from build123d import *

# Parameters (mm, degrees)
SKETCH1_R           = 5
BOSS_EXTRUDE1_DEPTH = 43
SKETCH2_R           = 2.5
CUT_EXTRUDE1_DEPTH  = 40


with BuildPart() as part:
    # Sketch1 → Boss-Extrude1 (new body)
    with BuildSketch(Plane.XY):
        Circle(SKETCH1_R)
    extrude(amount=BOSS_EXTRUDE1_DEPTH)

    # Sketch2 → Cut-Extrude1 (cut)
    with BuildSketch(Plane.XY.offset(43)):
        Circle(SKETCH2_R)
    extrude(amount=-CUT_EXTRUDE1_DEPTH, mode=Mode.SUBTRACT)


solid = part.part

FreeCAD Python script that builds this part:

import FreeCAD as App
import Part
import Sketcher
from FreeCAD import Vector

doc = App.newDocument("Part")
body = doc.addObject("PartDesign::Body", "Body")

# Sketch on XY plane
sketch1 = doc.addObject("Sketcher::SketchObject", "Sketch")
body.addObject(sketch1)
sketch1.AttachmentSupport = (doc.XY_Plane, [""])
sketch1.MapMode = "FlatFace"
sketch1.addGeometry(Part.Circle(Vector(0, 0, 0), Vector(0, 0, 1), 5), False)
sketch1.addConstraint([
    Sketcher.Constraint("Coincident", 0, 3, -1, 1),
    Sketcher.Constraint("Diameter", 0, 10.0),
])
pad1 = doc.addObject("PartDesign::Pad", "Pad")
body.addObject(pad1)
pad1.Profile = sketch1
pad1.Length = 43

# Sketch on XY plane
sketch2 = doc.addObject("Sketcher::SketchObject", "Sketch001")
body.addObject(sketch2)
sketch2.AttachmentSupport = (doc.XY_Plane, [""])
sketch2.MapMode = "FlatFace"
sketch2.AttachmentOffset = App.Placement(Vector(0, 0, 43), App.Rotation())
sketch2.addGeometry(Part.Circle(Vector(0, 0, 0), Vector(0, 0, 1), 2.5), False)
sketch2.addConstraint([
    Sketcher.Constraint("Coincident", 0, 3, -1, 1),
    Sketcher.Constraint("Diameter", 0, 5.0),
])
pocket1 = doc.addObject("PartDesign::Pocket", "Pocket")
body.addObject(pocket1)
pocket1.Profile = sketch2
pocket1.Length = 40

doc.recompute()
